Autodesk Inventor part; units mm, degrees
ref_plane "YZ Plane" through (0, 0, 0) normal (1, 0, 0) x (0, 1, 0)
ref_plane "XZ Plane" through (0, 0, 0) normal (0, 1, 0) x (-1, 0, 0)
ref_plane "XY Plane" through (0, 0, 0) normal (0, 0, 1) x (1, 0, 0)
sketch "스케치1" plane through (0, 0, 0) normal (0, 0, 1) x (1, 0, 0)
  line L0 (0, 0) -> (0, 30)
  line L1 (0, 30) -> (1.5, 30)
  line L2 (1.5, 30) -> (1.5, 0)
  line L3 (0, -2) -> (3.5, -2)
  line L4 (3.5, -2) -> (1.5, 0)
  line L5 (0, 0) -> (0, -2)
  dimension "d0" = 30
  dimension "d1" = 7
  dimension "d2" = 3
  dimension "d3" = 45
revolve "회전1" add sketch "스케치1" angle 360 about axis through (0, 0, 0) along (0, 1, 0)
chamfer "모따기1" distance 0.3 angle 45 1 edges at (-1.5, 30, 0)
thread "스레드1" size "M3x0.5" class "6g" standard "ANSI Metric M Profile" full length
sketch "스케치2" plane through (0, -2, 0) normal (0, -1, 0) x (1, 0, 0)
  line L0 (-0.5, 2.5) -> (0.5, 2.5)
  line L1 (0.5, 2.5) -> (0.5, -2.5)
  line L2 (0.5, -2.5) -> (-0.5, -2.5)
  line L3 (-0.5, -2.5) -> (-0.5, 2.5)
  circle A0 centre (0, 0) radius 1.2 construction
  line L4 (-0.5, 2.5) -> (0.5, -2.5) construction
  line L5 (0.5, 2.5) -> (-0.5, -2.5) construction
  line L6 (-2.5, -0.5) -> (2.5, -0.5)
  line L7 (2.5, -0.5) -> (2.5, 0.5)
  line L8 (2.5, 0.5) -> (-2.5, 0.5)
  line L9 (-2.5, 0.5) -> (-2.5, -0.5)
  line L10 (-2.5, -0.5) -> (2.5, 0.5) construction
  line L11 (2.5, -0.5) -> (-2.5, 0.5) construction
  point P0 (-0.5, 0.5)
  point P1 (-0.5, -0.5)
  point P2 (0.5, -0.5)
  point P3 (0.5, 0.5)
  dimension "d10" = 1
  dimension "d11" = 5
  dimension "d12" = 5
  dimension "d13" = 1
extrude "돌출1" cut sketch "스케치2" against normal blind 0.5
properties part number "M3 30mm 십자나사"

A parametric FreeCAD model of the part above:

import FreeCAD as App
import Part
import Sketcher

V = App.Vector
Q = App.Units.Quantity


def edges_at(feature, points):
    """Names of the edges that pass closest to the given points."""
    edges = feature.Shape.Edges
    near = lambda p: min(range(len(edges)), key=lambda i: edges[i].distToShape(Part.Vertex(*p))[0])
    return sorted({f"Edge{near(p) + 1}" for p in points})


def add_polygon(sketch, points):
    """Adds a closed chain of lines whose ends are joined by coincident constraints."""
    first, n = sketch.GeometryCount, len(points)
    for a, b in zip(points, points[1:] + points[:1]):
        sketch.addGeometry(Part.LineSegment(App.Vector(*a, 0), App.Vector(*b, 0)), False)
    for i in range(n):
        sketch.addConstraint(Sketcher.Constraint("Coincident", first + i, 2, first + (i + 1) % n, 1))

doc = App.newDocument("Part")
body = doc.addObject("PartDesign::Body", "Body")

sketch1 = body.newObject("Sketcher::SketchObject", "Sketch")
sketch1.AttachmentSupport = (doc.getObject("XY_Plane"), [""])
sketch1.MapMode = "FlatFace"
add_polygon(sketch1, [(0, 30), (0, -2), (3.5, -2), (1.5, 0), (1.5, 30)])
sketch1.addConstraint([
    Sketcher.Constraint("Vertical", 0),
    Sketcher.Constraint("Horizontal", 1),
    Sketcher.Constraint("Vertical", 3),
    Sketcher.Constraint("Horizontal", 4),
    Sketcher.Constraint("PointOnObject", 0, 2, -2),
    Sketcher.Constraint("PointOnObject", 2, 2, -1),
    Sketcher.Constraint("DistanceY", 3, 1, 3, 2, Q("30 mm")),
    Sketcher.Constraint("DistanceY", 0, 2, 0, 1, Q("32 mm")),
    Sketcher.Constraint("Angle", 2, Q("135 deg")),
    Sketcher.Constraint("DistanceX", 1, 1, 1, 2, Q("3.5 mm")),
])
revolution = body.newObject("PartDesign::Revolution", "Revolution")
revolution.Profile = sketch1
revolution.ReferenceAxis = (sketch1, ["V_Axis"])
revolution.Angle = 360
doc.recompute()

chamfer = body.newObject("PartDesign::Chamfer", "Chamfer")
chamfer.Base = (revolution, edges_at(revolution, [(-1.5, 30, 0)]))
chamfer.Size = 0.3

sketch2 = body.newObject("Sketcher::SketchObject", "Sketch001")
sketch2.AttachmentSupport = (doc.getObject("XZ_Plane"), [""])
sketch2.MapMode = "FlatFace"
sketch2.AttachmentOffset = App.Placement(V(0, 0, 2), App.Rotation())
add_polygon(sketch2, [(0.5, 2.5), (-0.5, 2.5), (-0.5, 0.5), (-2.5, 0.5), (-2.5, -0.5), (-0.5, -0.5), (-0.5, -2.5), (0.5, -2.5), (0.5, -0.5), (2.5, -0.5), (2.5, 0.5), (0.5, 0.5)])
sketch2.addConstraint([
    Sketcher.Constraint("Horizontal", 0),
    Sketcher.Constraint("Vertical", 1),
    Sketcher.Constraint("Horizontal", 2),
    Sketcher.Constraint("Vertical", 3),
    Sketcher.Constraint("Horizontal", 4),
    Sketcher.Constraint("Vertical", 5),
    Sketcher.Constraint("Horizontal", 6),
    Sketcher.Constraint("Vertical", 7),
    Sketcher.Constraint("Horizontal", 8),
    Sketcher.Constraint("Vertical", 9),
    Sketcher.Constraint("Horizontal", 10),
    Sketcher.Constraint("Vertical", 11),
    Sketcher.Constraint("Symmetric", 0, 2, 6, 2, -1, 1),
    Sketcher.Constraint("Symmetric", 2, 2, 8, 2, -1, 1),
    Sketcher.Constraint("Symmetric", 4, 2, 10, 2, -1, 1),
    Sketcher.Constraint("Symmetric", 4, 2, 7, 2, -2),
    Sketcher.Constraint("Equal", 10, 1),
    Sketcher.Constraint("Equal", 6, 3),
    Sketcher.Constraint("DistanceX", 0, 2, 0, 1, Q("1 mm")),
    Sketcher.Constraint("DistanceY", 5, 2, 0, 2, Q("5 mm")),
])
pocket1 = body.newObject("PartDesign::Pocket", "Pocket")
pocket1.Profile = sketch2
pocket1.Length = 0.5

doc.recompute()
